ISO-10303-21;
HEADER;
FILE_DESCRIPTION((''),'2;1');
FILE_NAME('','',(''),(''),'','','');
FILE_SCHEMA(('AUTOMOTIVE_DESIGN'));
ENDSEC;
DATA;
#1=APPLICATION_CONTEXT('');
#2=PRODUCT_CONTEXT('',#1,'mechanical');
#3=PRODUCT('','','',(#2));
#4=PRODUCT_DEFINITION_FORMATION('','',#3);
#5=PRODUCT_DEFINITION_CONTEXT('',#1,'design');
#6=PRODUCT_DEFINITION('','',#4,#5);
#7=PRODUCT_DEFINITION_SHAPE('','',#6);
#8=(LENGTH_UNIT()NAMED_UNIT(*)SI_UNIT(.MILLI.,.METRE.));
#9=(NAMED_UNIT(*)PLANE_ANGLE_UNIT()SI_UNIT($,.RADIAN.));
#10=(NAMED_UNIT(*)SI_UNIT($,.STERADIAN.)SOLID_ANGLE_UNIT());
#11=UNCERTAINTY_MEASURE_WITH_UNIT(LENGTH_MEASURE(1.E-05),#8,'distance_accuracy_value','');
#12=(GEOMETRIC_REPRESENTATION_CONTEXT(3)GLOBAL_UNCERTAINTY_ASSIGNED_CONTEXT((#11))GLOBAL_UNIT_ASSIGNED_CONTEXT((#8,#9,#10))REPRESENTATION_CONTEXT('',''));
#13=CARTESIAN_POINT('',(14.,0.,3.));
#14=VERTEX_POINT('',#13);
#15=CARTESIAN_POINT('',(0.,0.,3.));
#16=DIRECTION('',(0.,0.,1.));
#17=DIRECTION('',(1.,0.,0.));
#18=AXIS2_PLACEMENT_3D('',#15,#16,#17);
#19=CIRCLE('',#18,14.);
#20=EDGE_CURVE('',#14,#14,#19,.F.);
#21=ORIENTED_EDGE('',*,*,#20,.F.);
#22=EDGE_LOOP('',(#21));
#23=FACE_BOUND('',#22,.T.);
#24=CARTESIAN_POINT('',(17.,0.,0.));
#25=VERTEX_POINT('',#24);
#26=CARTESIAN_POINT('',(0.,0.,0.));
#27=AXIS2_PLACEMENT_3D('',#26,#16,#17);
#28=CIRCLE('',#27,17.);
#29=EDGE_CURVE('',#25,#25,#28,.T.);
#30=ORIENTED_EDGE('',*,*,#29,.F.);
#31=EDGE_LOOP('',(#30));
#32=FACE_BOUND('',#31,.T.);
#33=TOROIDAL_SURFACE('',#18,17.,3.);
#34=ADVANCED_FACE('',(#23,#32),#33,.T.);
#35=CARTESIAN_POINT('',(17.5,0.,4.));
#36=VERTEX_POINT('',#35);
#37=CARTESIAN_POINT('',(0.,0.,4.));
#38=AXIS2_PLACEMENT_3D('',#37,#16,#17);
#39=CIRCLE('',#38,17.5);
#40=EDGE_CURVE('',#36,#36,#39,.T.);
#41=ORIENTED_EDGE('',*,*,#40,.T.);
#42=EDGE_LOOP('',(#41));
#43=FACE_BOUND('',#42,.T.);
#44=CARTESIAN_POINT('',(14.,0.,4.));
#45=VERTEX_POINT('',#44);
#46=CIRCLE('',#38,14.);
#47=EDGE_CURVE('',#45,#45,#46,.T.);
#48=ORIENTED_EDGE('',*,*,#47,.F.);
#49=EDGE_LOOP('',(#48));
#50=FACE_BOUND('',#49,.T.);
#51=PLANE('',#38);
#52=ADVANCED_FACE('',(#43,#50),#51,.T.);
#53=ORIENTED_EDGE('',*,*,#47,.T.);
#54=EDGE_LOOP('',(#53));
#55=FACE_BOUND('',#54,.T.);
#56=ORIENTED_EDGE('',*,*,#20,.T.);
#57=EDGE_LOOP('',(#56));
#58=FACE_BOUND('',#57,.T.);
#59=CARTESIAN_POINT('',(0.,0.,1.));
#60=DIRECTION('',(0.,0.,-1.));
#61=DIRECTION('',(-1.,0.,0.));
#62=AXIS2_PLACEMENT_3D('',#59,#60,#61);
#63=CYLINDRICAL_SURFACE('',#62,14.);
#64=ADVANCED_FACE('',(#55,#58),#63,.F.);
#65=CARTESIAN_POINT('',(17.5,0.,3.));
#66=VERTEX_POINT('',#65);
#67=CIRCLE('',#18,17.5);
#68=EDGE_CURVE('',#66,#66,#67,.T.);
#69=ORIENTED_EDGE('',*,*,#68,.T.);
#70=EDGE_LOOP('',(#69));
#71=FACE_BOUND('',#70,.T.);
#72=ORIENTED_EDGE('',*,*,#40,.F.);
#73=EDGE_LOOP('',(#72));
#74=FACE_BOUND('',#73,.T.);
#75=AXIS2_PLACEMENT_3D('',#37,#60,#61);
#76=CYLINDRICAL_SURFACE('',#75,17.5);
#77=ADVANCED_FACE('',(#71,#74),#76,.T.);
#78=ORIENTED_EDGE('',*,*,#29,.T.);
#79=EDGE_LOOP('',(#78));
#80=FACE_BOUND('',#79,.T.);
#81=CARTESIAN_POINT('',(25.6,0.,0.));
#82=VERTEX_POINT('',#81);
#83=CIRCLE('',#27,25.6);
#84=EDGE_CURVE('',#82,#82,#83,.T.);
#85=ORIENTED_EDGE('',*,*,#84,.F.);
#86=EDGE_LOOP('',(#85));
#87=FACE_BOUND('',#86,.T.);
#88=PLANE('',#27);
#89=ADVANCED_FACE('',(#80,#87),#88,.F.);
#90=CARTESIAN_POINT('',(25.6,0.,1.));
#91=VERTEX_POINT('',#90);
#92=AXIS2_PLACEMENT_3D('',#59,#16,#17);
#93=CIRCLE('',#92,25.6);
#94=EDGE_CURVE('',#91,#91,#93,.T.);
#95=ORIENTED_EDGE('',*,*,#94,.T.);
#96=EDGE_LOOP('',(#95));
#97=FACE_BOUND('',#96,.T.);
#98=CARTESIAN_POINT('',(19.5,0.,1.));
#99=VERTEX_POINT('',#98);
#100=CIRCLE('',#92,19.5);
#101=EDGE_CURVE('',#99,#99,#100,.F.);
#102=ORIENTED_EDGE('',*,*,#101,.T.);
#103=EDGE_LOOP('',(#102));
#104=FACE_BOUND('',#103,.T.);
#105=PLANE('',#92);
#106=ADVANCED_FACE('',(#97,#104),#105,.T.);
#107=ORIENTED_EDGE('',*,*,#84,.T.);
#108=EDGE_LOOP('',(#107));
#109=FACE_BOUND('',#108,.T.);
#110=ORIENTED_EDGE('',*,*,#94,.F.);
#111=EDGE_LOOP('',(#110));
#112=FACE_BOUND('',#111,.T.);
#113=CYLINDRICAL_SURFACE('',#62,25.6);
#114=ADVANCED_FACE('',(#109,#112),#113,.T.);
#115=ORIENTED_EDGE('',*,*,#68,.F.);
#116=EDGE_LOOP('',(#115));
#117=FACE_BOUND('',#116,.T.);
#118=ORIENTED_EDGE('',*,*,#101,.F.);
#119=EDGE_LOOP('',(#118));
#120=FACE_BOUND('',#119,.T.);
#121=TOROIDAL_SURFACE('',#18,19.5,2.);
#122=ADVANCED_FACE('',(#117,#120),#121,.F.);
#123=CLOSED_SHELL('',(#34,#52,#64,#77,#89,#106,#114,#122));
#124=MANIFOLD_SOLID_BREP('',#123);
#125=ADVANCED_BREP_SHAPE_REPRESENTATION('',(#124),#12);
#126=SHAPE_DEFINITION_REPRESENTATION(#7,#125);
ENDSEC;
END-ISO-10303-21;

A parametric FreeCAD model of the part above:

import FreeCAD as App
import Part
import Sketcher
from FreeCAD import Vector


def edges_at(feature, points):
    """Names of the edges that pass closest to the given points."""
    edges = feature.Shape.Edges
    near = lambda p: min(range(len(edges)), key=lambda i: edges[i].distToShape(Part.Vertex(*p))[0])
    return sorted({f"Edge{near(p) + 1}" for p in points})

doc = App.newDocument("Part")
body = doc.addObject("PartDesign::Body", "Body")

# Sketch on XY plane
sketch1 = doc.addObject("Sketcher::SketchObject", "Sketch")
body.addObject(sketch1)
sketch1.AttachmentSupport = (doc.XY_Plane, [""])
sketch1.MapMode = "FlatFace"
sketch1.addGeometry([
    Part.Circle(Vector(0, 0, 0), Vector(0, 0, 1), 26),
    Part.Circle(Vector(0, 0, 0), Vector(0, 0, 1), 14),
], False)
sketch1.addConstraint([
    Sketcher.Constraint("Coincident", 0, 3, -1, 1),
    Sketcher.Constraint("Coincident", 1, 3, -1, 1),
    Sketcher.Constraint("Diameter", 1, 28.0),
    Sketcher.Constraint("Diameter", 0, 51.2),
])
pad1 = doc.addObject("PartDesign::Pad", "Pad")
body.addObject(pad1)
pad1.Profile = sketch1
pad1.Length = 1

# Sketch on XY plane
sketch2 = doc.addObject("Sketcher::SketchObject", "Sketch001")
body.addObject(sketch2)
sketch2.AttachmentSupport = (doc.XY_Plane, [""])
sketch2.MapMode = "FlatFace"
sketch2.AttachmentOffset = App.Placement(Vector(0, 0, 1), App.Rotation())
sketch2.addGeometry([
    Part.Circle(Vector(0, 0, 0), Vector(0, 0, 1), 18),
    Part.Circle(Vector(0, 0, 0), Vector(0, 0, 1), 14),
], False)
sketch2.addConstraint([
    Sketcher.Constraint("Coincident", 0, 3, -1, 1),
    Sketcher.Constraint("Coincident", 1, 3, -1, 1),
    Sketcher.Constraint("Diameter", 0, 35.0),
    Sketcher.Constraint("Diameter", 1, 28.0),
])
pad2 = doc.addObject("PartDesign::Pad", "Pad001")
body.addObject(pad2)
pad2.Profile = sketch2
pad2.Length = 3
doc.recompute()

fillet = doc.addObject("PartDesign::Fillet", "Fillet")
body.addObject(fillet)
fillet.Base = (pad2, edges_at(pad2, [(-17.5, 0, 1)]))
fillet.Radius = 2
doc.recompute()

fillet2 = doc.addObject("PartDesign::Fillet", "Fillet001")
body.addObject(fillet2)
fillet2.Base = (fillet, edges_at(fillet, [(-14, 0, 0)]))
fillet2.Radius = 3

doc.recompute()
